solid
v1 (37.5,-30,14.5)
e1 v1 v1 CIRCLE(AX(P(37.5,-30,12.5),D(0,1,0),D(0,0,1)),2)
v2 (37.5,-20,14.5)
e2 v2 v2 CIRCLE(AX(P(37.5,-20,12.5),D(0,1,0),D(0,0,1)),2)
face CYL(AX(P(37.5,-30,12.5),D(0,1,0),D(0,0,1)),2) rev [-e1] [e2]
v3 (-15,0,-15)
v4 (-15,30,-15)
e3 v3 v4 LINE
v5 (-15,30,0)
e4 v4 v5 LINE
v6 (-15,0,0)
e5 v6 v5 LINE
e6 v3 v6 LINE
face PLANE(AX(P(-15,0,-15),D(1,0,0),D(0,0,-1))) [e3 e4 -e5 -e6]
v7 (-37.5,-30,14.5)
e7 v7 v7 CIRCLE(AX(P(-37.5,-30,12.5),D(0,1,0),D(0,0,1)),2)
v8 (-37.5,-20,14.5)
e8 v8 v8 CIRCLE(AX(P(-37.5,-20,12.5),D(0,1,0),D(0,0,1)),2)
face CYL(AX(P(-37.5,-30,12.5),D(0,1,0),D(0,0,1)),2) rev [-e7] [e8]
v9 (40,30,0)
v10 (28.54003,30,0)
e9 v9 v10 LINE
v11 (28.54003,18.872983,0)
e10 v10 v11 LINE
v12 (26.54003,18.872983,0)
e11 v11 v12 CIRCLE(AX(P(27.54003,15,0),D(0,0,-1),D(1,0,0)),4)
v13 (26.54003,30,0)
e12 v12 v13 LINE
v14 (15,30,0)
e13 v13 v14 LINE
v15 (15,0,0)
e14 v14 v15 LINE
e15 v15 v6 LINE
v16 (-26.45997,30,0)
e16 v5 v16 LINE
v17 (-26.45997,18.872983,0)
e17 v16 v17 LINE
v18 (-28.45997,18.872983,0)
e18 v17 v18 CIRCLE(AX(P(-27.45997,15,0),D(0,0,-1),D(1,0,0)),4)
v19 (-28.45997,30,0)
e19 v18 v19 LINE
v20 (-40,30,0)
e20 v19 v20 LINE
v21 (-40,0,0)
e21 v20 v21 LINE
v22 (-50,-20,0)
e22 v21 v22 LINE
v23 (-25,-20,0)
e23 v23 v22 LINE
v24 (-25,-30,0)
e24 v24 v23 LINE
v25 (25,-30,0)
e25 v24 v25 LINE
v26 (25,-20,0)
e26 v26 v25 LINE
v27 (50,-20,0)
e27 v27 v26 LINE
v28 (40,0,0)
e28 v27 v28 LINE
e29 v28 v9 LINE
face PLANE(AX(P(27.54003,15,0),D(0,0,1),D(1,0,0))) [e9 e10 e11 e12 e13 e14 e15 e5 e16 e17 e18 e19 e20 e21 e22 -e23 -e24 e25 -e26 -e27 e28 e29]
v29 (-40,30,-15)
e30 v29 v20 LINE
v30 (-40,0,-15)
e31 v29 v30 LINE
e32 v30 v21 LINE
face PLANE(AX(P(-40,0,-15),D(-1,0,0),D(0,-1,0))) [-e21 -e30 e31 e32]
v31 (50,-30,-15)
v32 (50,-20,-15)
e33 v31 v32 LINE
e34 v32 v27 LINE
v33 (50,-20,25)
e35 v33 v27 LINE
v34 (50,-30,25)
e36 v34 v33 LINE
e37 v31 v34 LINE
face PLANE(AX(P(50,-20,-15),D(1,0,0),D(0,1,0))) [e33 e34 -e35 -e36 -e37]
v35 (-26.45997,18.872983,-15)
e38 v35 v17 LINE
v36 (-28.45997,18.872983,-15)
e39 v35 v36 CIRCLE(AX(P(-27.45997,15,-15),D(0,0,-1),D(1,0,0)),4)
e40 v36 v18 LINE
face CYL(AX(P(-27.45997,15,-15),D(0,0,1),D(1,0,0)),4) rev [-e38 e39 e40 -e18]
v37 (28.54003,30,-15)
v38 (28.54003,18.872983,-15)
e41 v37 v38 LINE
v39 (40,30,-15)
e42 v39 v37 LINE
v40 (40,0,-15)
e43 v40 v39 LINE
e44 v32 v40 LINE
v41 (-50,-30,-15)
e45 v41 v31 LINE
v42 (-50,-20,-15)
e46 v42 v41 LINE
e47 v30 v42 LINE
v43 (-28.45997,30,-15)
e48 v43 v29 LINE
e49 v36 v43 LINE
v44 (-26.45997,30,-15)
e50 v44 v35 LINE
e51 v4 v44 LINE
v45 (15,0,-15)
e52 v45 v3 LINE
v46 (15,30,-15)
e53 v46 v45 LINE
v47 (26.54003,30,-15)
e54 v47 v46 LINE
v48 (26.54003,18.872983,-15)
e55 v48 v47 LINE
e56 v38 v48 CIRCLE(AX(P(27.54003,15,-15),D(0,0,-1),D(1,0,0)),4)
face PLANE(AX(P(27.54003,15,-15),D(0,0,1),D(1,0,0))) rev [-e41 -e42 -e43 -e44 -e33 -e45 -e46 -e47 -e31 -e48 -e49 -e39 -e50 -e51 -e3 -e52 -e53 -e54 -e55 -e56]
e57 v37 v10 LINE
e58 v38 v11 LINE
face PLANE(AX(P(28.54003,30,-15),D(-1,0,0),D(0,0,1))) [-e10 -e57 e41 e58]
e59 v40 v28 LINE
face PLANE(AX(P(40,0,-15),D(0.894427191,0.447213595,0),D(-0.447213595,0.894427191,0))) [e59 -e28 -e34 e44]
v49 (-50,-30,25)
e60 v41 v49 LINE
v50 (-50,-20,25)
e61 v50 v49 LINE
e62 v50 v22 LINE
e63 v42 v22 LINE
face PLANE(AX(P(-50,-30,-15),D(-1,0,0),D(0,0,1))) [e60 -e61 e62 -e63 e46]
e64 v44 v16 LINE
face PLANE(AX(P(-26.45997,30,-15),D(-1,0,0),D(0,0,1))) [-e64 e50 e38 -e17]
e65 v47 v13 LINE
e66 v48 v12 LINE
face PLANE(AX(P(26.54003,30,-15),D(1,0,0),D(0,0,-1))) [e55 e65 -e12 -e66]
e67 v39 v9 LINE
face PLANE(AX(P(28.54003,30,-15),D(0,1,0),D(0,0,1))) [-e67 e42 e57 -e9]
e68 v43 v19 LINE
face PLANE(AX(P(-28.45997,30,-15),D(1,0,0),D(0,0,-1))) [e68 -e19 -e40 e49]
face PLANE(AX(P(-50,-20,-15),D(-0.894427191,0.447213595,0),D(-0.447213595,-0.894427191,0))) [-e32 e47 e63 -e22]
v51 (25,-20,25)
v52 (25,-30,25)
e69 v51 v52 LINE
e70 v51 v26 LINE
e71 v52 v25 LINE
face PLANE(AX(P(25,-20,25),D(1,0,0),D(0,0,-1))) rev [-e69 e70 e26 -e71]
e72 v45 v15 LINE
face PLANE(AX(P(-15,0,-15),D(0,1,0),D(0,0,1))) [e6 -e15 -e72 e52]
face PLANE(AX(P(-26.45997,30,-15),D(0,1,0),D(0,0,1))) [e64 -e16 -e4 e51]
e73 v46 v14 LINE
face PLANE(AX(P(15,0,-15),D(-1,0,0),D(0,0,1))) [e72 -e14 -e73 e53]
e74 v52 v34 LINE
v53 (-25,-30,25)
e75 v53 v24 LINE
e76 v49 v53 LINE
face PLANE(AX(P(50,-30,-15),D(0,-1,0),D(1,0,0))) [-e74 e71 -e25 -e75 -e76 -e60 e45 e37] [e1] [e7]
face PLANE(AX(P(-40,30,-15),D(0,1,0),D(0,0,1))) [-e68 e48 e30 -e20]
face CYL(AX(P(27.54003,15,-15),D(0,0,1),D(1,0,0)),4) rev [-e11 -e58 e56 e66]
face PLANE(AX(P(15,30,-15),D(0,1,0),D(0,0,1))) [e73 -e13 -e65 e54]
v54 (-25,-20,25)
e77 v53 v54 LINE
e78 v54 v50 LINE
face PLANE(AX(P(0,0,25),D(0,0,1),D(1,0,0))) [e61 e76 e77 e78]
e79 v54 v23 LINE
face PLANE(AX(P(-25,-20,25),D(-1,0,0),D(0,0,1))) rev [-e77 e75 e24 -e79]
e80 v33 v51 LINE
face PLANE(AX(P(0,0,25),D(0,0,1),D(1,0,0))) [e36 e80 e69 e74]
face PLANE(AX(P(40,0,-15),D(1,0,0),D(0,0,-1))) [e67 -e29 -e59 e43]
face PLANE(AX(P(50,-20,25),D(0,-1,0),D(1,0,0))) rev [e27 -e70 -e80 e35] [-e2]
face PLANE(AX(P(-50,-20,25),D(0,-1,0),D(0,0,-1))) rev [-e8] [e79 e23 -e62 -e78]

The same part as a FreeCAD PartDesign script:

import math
import FreeCAD as App
import Part
import Sketcher

V = App.Vector

doc = App.newDocument("Part")
body = doc.addObject("PartDesign::Body", "Body")

# Sketch on XY plane
sketch1 = body.newObject("Sketcher::SketchObject", "Sketch")
sketch1.AttachmentSupport = (doc.getObject("XY_Plane"), [""])
sketch1.MapMode = "FlatFace"
sketch1.addGeometry(Part.LineSegment(V(15, 0, 0), V(-15, 0, 0)), False)
sketch1.addGeometry(Part.LineSegment(V(-15, 0, 0), V(-15, 30, 0)), False)
sketch1.addGeometry(Part.LineSegment(V(-15, 30, 0), V(-26.5, 30, 0)), False)
sketch1.addGeometry(Part.LineSegment(V(-26.5, 30, 0), V(-26.5, 18.9, 0)), False)
sketch1.addGeometry(Part.ArcOfCircle(Part.Circle(V(-27.5, 15, 0), V(0, 0, 1), 4), math.radians(104), math.radians(436)), False)
sketch1.addGeometry(Part.LineSegment(V(-28.5, 18.9, 0), V(-28.5, 30, 0)), False)
sketch1.addGeometry(Part.LineSegment(V(-28.5, 30, 0), V(-40, 30, 0)), False)
sketch1.addGeometry(Part.LineSegment(V(-40, 30, 0), V(-40, 0, 0)), False)
sketch1.addGeometry(Part.LineSegment(V(-40, 0, 0), V(-50, -20, 0)), False)
sketch1.addGeometry(Part.LineSegment(V(-50, -20, 0), V(-50, -30, 0)), False)
sketch1.addGeometry(Part.LineSegment(V(-50, -30, 0), V(50, -30, 0)), False)
sketch1.addGeometry(Part.LineSegment(V(50, -30, 0), V(50, -20, 0)), False)
sketch1.addGeometry(Part.LineSegment(V(50, -20, 0), V(40, 0, 0)), False)
sketch1.addGeometry(Part.LineSegment(V(40, 0, 0), V(40, 30, 0)), False)
sketch1.addGeometry(Part.LineSegment(V(40, 30, 0), V(28.5, 30, 0)), False)
sketch1.addGeometry(Part.LineSegment(V(28.5, 30, 0), V(28.5, 18.9, 0)), False)
sketch1.addGeometry(Part.ArcOfCircle(Part.Circle(V(27.5, 15, 0), V(0, 0, 1), 4), math.radians(104), math.radians(436)), False)
sketch1.addGeometry(Part.LineSegment(V(26.5, 18.9, 0), V(26.5, 30, 0)), False)
sketch1.addGeometry(Part.LineSegment(V(26.5, 30, 0), V(15, 30, 0)), False)
sketch1.addGeometry(Part.LineSegment(V(15, 30, 0), V(15, 0, 0)), False)
sketch1.addConstraint(Sketcher.Constraint("Coincident", 0, 2, 1, 1))
sketch1.addConstraint(Sketcher.Constraint("Coincident", 1, 2, 2, 1))
sketch1.addConstraint(Sketcher.Constraint("Coincident", 2, 2, 3, 1))
sketch1.addConstraint(Sketcher.Constraint("Coincident", 3, 2, 4, 2))
sketch1.addConstraint(Sketcher.Constraint("Coincident", 4, 1, 5, 1))
sketch1.addConstraint(Sketcher.Constraint("Coincident", 5, 2, 6, 1))
sketch1.addConstraint(Sketcher.Constraint("Coincident", 6, 2, 7, 1))
sketch1.addConstraint(Sketcher.Constraint("Coincident", 7, 2, 8, 1))
sketch1.addConstraint(Sketcher.Constraint("Coincident", 8, 2, 9, 1))
sketch1.addConstraint(Sketcher.Constraint("Coincident", 9, 2, 10, 1))
sketch1.addConstraint(Sketcher.Constraint("Coincident", 10, 2, 11, 1))
sketch1.addConstraint(Sketcher.Constraint("Coincident", 11, 2, 12, 1))
sketch1.addConstraint(Sketcher.Constraint("Coincident", 12, 2, 13, 1))
sketch1.addConstraint(Sketcher.Constraint("Coincident", 13, 2, 14, 1))
sketch1.addConstraint(Sketcher.Constraint("Coincident", 14, 2, 15, 1))
sketch1.addConstraint(Sketcher.Constraint("Coincident", 15, 2, 16, 2))
sketch1.addConstraint(Sketcher.Constraint("Coincident", 16, 1, 17, 1))
sketch1.addConstraint(Sketcher.Constraint("Coincident", 17, 2, 18, 1))
sketch1.addConstraint(Sketcher.Constraint("Coincident", 18, 2, 19, 1))
sketch1.addConstraint(Sketcher.Constraint("Coincident", 19, 2, 0, 1))
sketch1.addConstraint(Sketcher.Constraint("Horizontal", 0))
sketch1.addConstraint(Sketcher.Constraint("Vertical", 1))
sketch1.addConstraint(Sketcher.Constraint("Horizontal", 2))
sketch1.addConstraint(Sketcher.Constraint("Vertical", 3))
sketch1.addConstraint(Sketcher.Constraint("Vertical", 5))
sketch1.addConstraint(Sketcher.Constraint("Horizontal", 6))
sketch1.addConstraint(Sketcher.Constraint("Vertical", 7))
sketch1.addConstraint(Sketcher.Constraint("Vertical", 9))
sketch1.addConstraint(Sketcher.Constraint("Horizontal", 10))
sketch1.addConstraint(Sketcher.Constraint("Vertical", 11))
sketch1.addConstraint(Sketcher.Constraint("Vertical", 13))
sketch1.addConstraint(Sketcher.Constraint("Horizontal", 14))
sketch1.addConstraint(Sketcher.Constraint("Vertical", 15))
sketch1.addConstraint(Sketcher.Constraint("Vertical", 17))
sketch1.addConstraint(Sketcher.Constraint("Horizontal", 18))
sketch1.addConstraint(Sketcher.Constraint("Vertical", 19))
sketch1.addConstraint(Sketcher.Constraint("Equal", 4, 16))
sketch1.addConstraint(Sketcher.Constraint("Symmetric", 7, 2, 12, 2, -1, 1))
sketch1.addConstraint(Sketcher.Constraint("Symmetric", 0, 2, 19, 2, -1, 1))
sketch1.addConstraint(Sketcher.Constraint("Symmetric", 8, 2, 11, 2, -2))
sketch1.addConstraint(Sketcher.Constraint("PointOnObject", 7, 2, -1))
sketch1.addConstraint(Sketcher.Constraint("Horizontal", 4, 3, 16, 3))
sketch1.addConstraint(Sketcher.Constraint("Horizontal", 3, 2, 4, 1))
sketch1.addConstraint(Sketcher.Constraint("Horizontal", 2, 2, 5, 2))
sketch1.addConstraint(Sketcher.Constraint("Horizontal", 6, 2, 13, 2))
sketch1.addConstraint(Sketcher.Constraint("Horizontal", 4, 1, 15, 2))
sketch1.addConstraint(Sketcher.Constraint("Horizontal", 15, 2, 16, 1))
sketch1.addConstraint(Sketcher.Constraint("Horizontal", 14, 2, 17, 2))
sketch1.addConstraint(Sketcher.Constraint("Equal", 2, 14))
sketch1.addConstraint(Sketcher.Constraint("Equal", 0, 1))
sketch1.addConstraint(Sketcher.Constraint("Radius", 4, 4.0))
sketch1.addConstraint(Sketcher.Constraint("DistanceX", 0, 2, 0, 1, 30.0))
sketch1.addConstraint(Sketcher.Constraint("DistanceX", 10, 1, 10, 2, 100.0))
sketch1.addConstraint(Sketcher.Constraint("DistanceY", 9, 2, 9, 1, 10.0))
sketch1.addConstraint(Sketcher.Constraint("DistanceY", -1, 1, 4, 3, 15.0))
sketch1.addConstraint(Sketcher.Constraint("DistanceX", 6, 2, -1, 1, 40.0))
sketch1.addConstraint(Sketcher.Constraint("DistanceY", 8, 2, -1, 1, 20.0))
sketch1.addConstraint(Sketcher.Constraint("DistanceX", 4, 3, 2, 2, 1.0))
sketch1.addConstraint(Sketcher.Constraint("DistanceX", 2, 2, 2, 1, 11.45997))
pad1 = body.newObject("PartDesign::Pad", "Pad")
pad1.Profile = sketch1
pad1.Length = 15
pad1.Reversed = True

# Sketch on XY plane
sketch2 = body.newObject("Sketcher::SketchObject", "Sketch001")
sketch2.AttachmentSupport = (doc.getObject("XY_Plane"), [""])
sketch2.MapMode = "FlatFace"
sketch2.addGeometry(Part.LineSegment(V(-50, -20, 0), V(-50, -30, 0)), False)
sketch2.addGeometry(Part.LineSegment(V(-50, -30, 0), V(-25, -30, 0)), False)
sketch2.addGeometry(Part.LineSegment(V(-25, -30, 0), V(-25, -20, 0)), False)
sketch2.addGeometry(Part.LineSegment(V(-25, -20, 0), V(-50, -20, 0)), False)
sketch2.addGeometry(Part.LineSegment(V(25, -20, 0), V(25, -30, 0)), False)
sketch2.addGeometry(Part.LineSegment(V(25, -30, 0), V(50, -30, 0)), False)
sketch2.addGeometry(Part.LineSegment(V(50, -30, 0), V(50, -20, 0)), False)
sketch2.addGeometry(Part.LineSegment(V(50, -20, 0), V(25, -20, 0)), False)
sketch2.addConstraint(Sketcher.Constraint("Coincident", 0, 2, 1, 1))
sketch2.addConstraint(Sketcher.Constraint("Coincident", 1, 2, 2, 1))
sketch2.addConstraint(Sketcher.Constraint("Coincident", 2, 2, 3, 1))
sketch2.addConstraint(Sketcher.Constraint("Coincident", 3, 2, 0, 1))
sketch2.addConstraint(Sketcher.Constraint("Coincident", 4, 2, 5, 1))
sketch2.addConstraint(Sketcher.Constraint("Coincident", 5, 2, 6, 1))
sketch2.addConstraint(Sketcher.Constraint("Coincident", 6, 2, 7, 1))
sketch2.addConstraint(Sketcher.Constraint("Coincident", 7, 2, 4, 1))
sketch2.addConstraint(Sketcher.Constraint("Vertical", 0))
sketch2.addConstraint(Sketcher.Constraint("Horizontal", 1))
sketch2.addConstraint(Sketcher.Constraint("Vertical", 2))
sketch2.addConstraint(Sketcher.Constraint("Horizontal", 3))
sketch2.addConstraint(Sketcher.Constraint("Vertical", 4))
sketch2.addConstraint(Sketcher.Constraint("Horizontal", 5))
sketch2.addConstraint(Sketcher.Constraint("Vertical", 6))
sketch2.addConstraint(Sketcher.Constraint("Horizontal", 7))
sketch2.addConstraint(Sketcher.Constraint("Symmetric", 1, 2, 4, 2, -2))
sketch2.addConstraint(Sketcher.Constraint("Symmetric", 3, 2, 6, 2, -2))
sketch2.addConstraint(Sketcher.Constraint("DistanceX", 1, 1, 1, 2, 25.0))
sketch2.addConstraint(Sketcher.Constraint("DistanceY", 0, 2, 0, 1, 10.0))
sketch2.addConstraint(Sketcher.Constraint("DistanceX", 0, 2, -1, 1, 50.0))
sketch2.addConstraint(Sketcher.Constraint("DistanceY", 0, 2, -1, 1, 30.0))
pad2 = body.newObject("PartDesign::Pad", "Pad001")
pad2.Profile = sketch2
pad2.Length = 25

# Sketch on XZ plane
sketch3 = body.newObject("Sketcher::SketchObject", "Sketch002")
sketch3.AttachmentSupport = (doc.getObject("XZ_Plane"), [""])
sketch3.MapMode = "FlatFace"
sketch3.AttachmentOffset = App.Placement(V(0, 0, 20), App.Rotation())
sketch3.addGeometry(Part.Circle(V(-37.5, 12.5, 0), V(0, 0, 1), 2), False)
sketch3.addGeometry(Part.Circle(V(37.5, 12.5, 0), V(0, 0, 1), 2), False)
sketch3.addConstraint(Sketcher.Constraint("Equal", 0, 1))
sketch3.addConstraint(Sketcher.Constraint("Symmetric", 0, 3, 1, 3, -2))
sketch3.addConstraint(Sketcher.Constraint("Diameter", 0, 4.0))
sketch3.addConstraint(Sketcher.Constraint("DistanceX", 0, 3, 1, 3, 75.0))
sketch3.addConstraint(Sketcher.Constraint("DistanceY", -1, 1, 0, 3, 12.5))
pocket1 = body.newObject("PartDesign::Pocket", "Pocket")
pocket1.Profile = sketch3
pocket1.Length = 10
pocket1.Reversed = True

doc.recompute()
